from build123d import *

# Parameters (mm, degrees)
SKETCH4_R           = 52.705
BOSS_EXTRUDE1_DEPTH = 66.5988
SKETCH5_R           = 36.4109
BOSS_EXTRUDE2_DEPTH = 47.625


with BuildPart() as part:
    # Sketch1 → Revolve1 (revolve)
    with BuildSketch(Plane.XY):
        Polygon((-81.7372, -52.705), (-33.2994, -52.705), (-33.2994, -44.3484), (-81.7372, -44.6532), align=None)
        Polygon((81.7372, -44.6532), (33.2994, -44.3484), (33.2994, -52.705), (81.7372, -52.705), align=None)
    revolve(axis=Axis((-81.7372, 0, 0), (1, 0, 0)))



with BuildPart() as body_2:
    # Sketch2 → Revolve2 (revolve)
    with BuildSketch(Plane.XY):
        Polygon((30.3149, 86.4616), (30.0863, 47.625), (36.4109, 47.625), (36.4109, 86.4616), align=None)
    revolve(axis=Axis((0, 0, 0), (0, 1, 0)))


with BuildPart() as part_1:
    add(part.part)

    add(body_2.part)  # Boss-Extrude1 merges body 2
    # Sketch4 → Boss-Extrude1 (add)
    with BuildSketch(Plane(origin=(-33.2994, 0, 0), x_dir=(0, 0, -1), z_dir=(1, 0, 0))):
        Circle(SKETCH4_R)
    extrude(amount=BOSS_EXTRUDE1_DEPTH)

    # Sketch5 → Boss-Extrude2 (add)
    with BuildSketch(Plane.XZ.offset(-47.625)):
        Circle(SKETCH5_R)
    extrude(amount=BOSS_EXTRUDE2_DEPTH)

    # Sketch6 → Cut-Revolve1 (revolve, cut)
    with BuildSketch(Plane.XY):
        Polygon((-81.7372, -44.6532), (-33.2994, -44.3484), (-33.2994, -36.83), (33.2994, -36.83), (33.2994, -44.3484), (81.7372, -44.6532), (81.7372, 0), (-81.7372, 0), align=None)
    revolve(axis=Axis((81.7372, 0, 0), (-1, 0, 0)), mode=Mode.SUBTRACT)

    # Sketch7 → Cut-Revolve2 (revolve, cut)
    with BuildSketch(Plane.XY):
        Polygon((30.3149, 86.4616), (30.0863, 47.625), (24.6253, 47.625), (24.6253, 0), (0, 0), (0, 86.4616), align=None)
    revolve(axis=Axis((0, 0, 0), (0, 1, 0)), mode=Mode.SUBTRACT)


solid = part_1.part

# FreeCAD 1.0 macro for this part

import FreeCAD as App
import Part
import Sketcher

V = App.Vector
Q = App.Units.Quantity


def add_polygon(sketch, points):
    """Adds a closed chain of lines whose ends are joined by coincident constraints."""
    first, n = sketch.GeometryCount, len(points)
    for a, b in zip(points, points[1:] + points[:1]):
        sketch.addGeometry(Part.LineSegment(App.Vector(*a, 0), App.Vector(*b, 0)), False)
    for i in range(n):
        sketch.addConstraint(Sketcher.Constraint("Coincident", first + i, 2, first + (i + 1) % n, 1))

doc = App.newDocument("Part")
body = doc.addObject("PartDesign::Body", "Body")
body.AllowCompound = True

# Sketch on XY plane
sketch1 = doc.addObject("Sketcher::SketchObject", "Sketch")
body.addObject(sketch1)
sketch1.AttachmentSupport = (doc.XY_Plane, [""])
sketch1.MapMode = "FlatFace"
add_polygon(sketch1, [(-82, -53), (-33, -53), (-33, -44), (-82, -45)])  # lines 0-3
add_polygon(sketch1, [(82, -45), (33, -44), (33, -53), (82, -53)])  # lines 4-7
sketch1.addConstraint([
    Sketcher.Constraint("Horizontal", 0),
    Sketcher.Constraint("Vertical", 1),
    Sketcher.Constraint("Vertical", 3),
    Sketcher.Constraint("Vertical", 5),
    Sketcher.Constraint("Horizontal", 6),
    Sketcher.Constraint("Vertical", 7),
    Sketcher.Constraint("Symmetric", 1, 2, 4, 2, -2),
    Sketcher.Constraint("Symmetric", 3, 2, 6, 2, -2),
    Sketcher.Constraint("Horizontal", 2, 2, 7, 2),
    Sketcher.Constraint("DistanceX", 0, 1, 0, 2, Q("1.907 in")),
    Sketcher.Constraint("DistanceY", 1, 1, 1, 2, Q("0.329 in")),
    Sketcher.Constraint("DistanceY", 3, 2, 3, 1, Q("0.317 in")),
    Sketcher.Constraint("DistanceX", 0, 2, -1, 1, Q("1.311 in")),
    Sketcher.Constraint("DistanceY", 0, 2, -1, 1, Q("2.075 in")),
])
revolution = doc.addObject("PartDesign::Revolution", "Revolution")
body.addObject(revolution)
revolution.Profile = sketch1
revolution.ReferenceAxis = (sketch1, ["H_Axis"])
revolution.Angle = 360
body2 = doc.addObject("PartDesign::Body", "Body001")

# Sketch on XY plane
sketch2 = doc.addObject("Sketcher::SketchObject", "Sketch001")
body2.addObject(sketch2)
sketch2.AttachmentSupport = (doc.getObject("XY_Plane001"), [""])
sketch2.MapMode = "FlatFace"
add_polygon(sketch2, [(30, 86), (30, 48), (36, 48), (36, 86)])  # lines 0-3
sketch2.addConstraint([
    Sketcher.Constraint("Horizontal", 1),
    Sketcher.Constraint("Vertical", 2),
    Sketcher.Constraint("Horizontal", 3),
    Sketcher.Constraint("DistanceX", 3, 2, 3, 1, Q("0.24 in")),
    Sketcher.Constraint("DistanceX", 1, 1, 1, 2, Q("0.249 in")),
    Sketcher.Constraint("DistanceY", 2, 1, 2, 2, Q("1.529 in")),
    Sketcher.Constraint("DistanceY", -1, 1, 0, 2, Q("1.875 in")),
    Sketcher.Constraint("DistanceX", -1, 1, 0, 2, Q("1.1845 in")),
])
revolution2 = doc.addObject("PartDesign::Revolution", "Revolution001")
body2.addObject(revolution2)
revolution2.Profile = sketch2
revolution2.ReferenceAxis = (sketch2, ["V_Axis"])
revolution2.Angle = 360
doc.recompute()

boolean = doc.addObject("PartDesign::Boolean", "Boolean")
body.addObject(boolean)
boolean.Type = "Fuse"
boolean.addObjects([body2])

# Sketch on YZ plane
sketch3 = doc.addObject("Sketcher::SketchObject", "Sketch002")
body.addObject(sketch3)
sketch3.AttachmentSupport = (doc.YZ_Plane, [""])
sketch3.MapMode = "FlatFace"
sketch3.AttachmentOffset = App.Placement(V(0, 0, -1.311 * 25.4), App.Rotation())
sketch3.addGeometry(Part.Circle(V(0, 0, 0), V(0, 0, 1), 53), False)
sketch3.addConstraint([
    Sketcher.Constraint("Coincident", 0, 3, -1, 1),
    Sketcher.Constraint("Diameter", 0, Q("4.15 in")),
])
pad1 = doc.addObject("PartDesign::Pad", "Pad")
body.addObject(pad1)
pad1.Profile = sketch3
pad1.Length = Q("2.622 in")

# Sketch on XZ plane
sketch4 = doc.addObject("Sketcher::SketchObject", "Sketch003")
body.addObject(sketch4)
sketch4.AttachmentSupport = (doc.XZ_Plane, [""])
sketch4.MapMode = "FlatFace"
sketch4.AttachmentOffset = App.Placement(V(0, 0, -1.875 * 25.4), App.Rotation())
sketch4.addGeometry(Part.Circle(V(0, 0, 0), V(0, 0, 1), 36), False)
sketch4.addConstraint([
    Sketcher.Constraint("Coincident", 0, 3, -1, 1),
    Sketcher.Constraint("Diameter", 0, Q("2.867 in")),
])
pad2 = doc.addObject("PartDesign::Pad", "Pad001")
body.addObject(pad2)
pad2.Profile = sketch4
pad2.Length = Q("1.875 in")

# Sketch on XY plane
sketch5 = doc.addObject("Sketcher::SketchObject", "Sketch004")
body.addObject(sketch5)
sketch5.AttachmentSupport = (doc.XY_Plane, [""])
sketch5.MapMode = "FlatFace"
add_polygon(sketch5, [(-82, -45), (-33, -44), (-33, -37), (33, -37), (33, -44), (82, -45), (82, 0), (-82, 0)])  # lines 0-7
sketch5.addConstraint([
    Sketcher.Constraint("Vertical", 1),
    Sketcher.Constraint("Horizontal", 2),
    Sketcher.Constraint("Vertical", 3),
    Sketcher.Constraint("Vertical", 5),
    Sketcher.Constraint("Horizontal", 6),
    Sketcher.Constraint("Vertical", 7),
    Sketcher.Constraint("Symmetric", 5, 2, 6, 2, -1, 1),
    Sketcher.Constraint("Symmetric", 0, 2, 3, 2, -2),
    Sketcher.Constraint("Horizontal", 4, 2, 7, 2),
    Sketcher.Constraint("DistanceX", 2, 1, 2, 2, Q("2.622 in")),
    Sketcher.Constraint("DistanceX", 6, 2, 6, 1, Q("6.436 in")),
    Sketcher.Constraint("DistanceY", 1, 1, 1, 2, Q("0.296 in")),
    Sketcher.Constraint("DistanceY", 5, 1, 5, 2, Q("1.758 in")),
    Sketcher.Constraint("DistanceY", 1, 2, -1, 1, Q("1.45 in")),
])
groove = doc.addObject("PartDesign::Groove", "Groove")
body.addObject(groove)
groove.Profile = sketch5
groove.ReferenceAxis = (sketch5, ["H_Axis"])
groove.Angle = 360

# Sketch on XY plane
sketch6 = doc.addObject("Sketcher::SketchObject", "Sketch005")
body.addObject(sketch6)
sketch6.AttachmentSupport = (doc.XY_Plane, [""])
sketch6.MapMode = "FlatFace"
add_polygon(sketch6, [(30, 48), (30, 86), (0, 86), (0, 0), (25, 0), (25, 48)])  # lines 0-5
sketch6.addConstraint([
    Sketcher.Constraint("Horizontal", 1),
    Sketcher.Constraint("Vertical", 2),
    Sketcher.Constraint("Horizontal", 3),
    Sketcher.Constraint("Vertical", 4),
    Sketcher.Constraint("Horizontal", 5),
    Sketcher.Constraint("Coincident", 2, 2, -1, 1),
    Sketcher.Constraint("DistanceX", 5, 1, 5, 2, Q("0.215 in")),
    Sketcher.Constraint("DistanceY", 2, 2, 2, 1, Q("3.404 in")),
    Sketcher.Constraint("DistanceY", 4, 1, 4, 2, Q("1.875 in")),
    Sketcher.Constraint("DistanceX", 1, 2, 1, 1, Q("1.1935 in")),
    Sketcher.Constraint("DistanceX", 3, 1, 3, 2, Q("0.9695 in")),
])
groove2 = doc.addObject("PartDesign::Groove", "Groove001")
body.addObject(groove2)
groove2.Profile = sketch6
groove2.ReferenceAxis = (sketch6, ["V_Axis"])
groove2.Angle = 360

doc.recompute()
